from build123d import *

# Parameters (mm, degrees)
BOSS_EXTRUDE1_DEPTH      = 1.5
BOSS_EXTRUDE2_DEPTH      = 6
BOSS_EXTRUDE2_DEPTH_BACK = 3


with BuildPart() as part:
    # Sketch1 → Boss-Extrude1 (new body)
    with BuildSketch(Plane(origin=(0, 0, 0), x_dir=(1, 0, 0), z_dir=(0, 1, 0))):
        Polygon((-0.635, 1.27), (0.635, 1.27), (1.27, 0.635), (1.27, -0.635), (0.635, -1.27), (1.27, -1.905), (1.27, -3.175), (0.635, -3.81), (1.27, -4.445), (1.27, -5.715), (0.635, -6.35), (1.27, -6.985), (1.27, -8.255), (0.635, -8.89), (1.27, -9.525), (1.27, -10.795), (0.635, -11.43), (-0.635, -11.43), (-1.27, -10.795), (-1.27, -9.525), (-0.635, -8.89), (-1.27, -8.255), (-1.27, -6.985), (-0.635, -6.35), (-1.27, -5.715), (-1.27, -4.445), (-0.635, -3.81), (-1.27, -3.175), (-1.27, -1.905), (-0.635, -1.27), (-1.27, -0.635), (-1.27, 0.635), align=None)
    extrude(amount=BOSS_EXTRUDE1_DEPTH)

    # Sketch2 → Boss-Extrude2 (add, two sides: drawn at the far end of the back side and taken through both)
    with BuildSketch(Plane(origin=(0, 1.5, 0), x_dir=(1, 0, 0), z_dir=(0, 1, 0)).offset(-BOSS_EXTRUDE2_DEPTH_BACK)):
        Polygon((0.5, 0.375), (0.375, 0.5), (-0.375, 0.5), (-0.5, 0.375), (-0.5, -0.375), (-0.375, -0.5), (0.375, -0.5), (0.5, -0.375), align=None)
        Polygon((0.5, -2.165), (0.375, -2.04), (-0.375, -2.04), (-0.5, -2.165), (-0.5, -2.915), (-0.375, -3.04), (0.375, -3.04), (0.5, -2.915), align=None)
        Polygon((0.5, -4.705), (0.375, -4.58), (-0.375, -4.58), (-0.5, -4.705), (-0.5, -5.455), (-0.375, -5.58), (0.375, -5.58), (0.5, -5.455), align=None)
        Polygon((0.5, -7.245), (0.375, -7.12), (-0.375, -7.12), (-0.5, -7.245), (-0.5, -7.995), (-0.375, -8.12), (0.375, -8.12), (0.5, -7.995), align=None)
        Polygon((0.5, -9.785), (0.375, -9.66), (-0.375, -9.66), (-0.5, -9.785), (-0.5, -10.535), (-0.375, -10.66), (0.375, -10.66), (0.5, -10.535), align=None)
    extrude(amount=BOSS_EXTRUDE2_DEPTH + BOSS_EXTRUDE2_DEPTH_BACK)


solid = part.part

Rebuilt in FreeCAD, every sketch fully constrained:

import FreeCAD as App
import Part
import Sketcher

V = App.Vector
Q = App.Units.Quantity


def add_polygon(sketch, points):
    """Adds a closed chain of lines whose ends are joined by coincident constraints."""
    first, n = sketch.GeometryCount, len(points)
    for a, b in zip(points, points[1:] + points[:1]):
        sketch.addGeometry(Part.LineSegment(App.Vector(*a, 0), App.Vector(*b, 0)), False)
    for i in range(n):
        sketch.addConstraint(Sketcher.Constraint("Coincident", first + i, 2, first + (i + 1) % n, 1))

doc = App.newDocument("Part")
body = doc.addObject("PartDesign::Body", "Body")

sketch1 = doc.addObject("Sketcher::SketchObject", "Sketch")
body.addObject(sketch1)
sketch1.AttachmentSupport = (doc.XZ_Plane, [""])
sketch1.MapMode = "FlatFace"
add_polygon(sketch1, [(0.6, -1.3), (-0.6, -1.3), (-1.3, -0.6), (-1.3, 0.6), (-0.6, 1.3), (-1.3, 1.9), (-1.3, 3.2), (-0.6, 3.8), (-1.3, 4.4), (-1.3, 5.7), (-0.6, 6.3), (-1.3, 7), (-1.3, 8.3), (-0.6, 8.9), (-1.3, 9.5), (-1.3, 10.8), (-0.6, 11.4), (0.6, 11.4), (1.3, 10.8), (1.3, 9.5), (0.6, 8.9), (1.3, 8.3), (1.3, 7), (0.6, 6.3), (1.3, 5.7), (1.3, 4.4), (0.6, 3.8), (1.3, 3.2), (1.3, 1.9), (0.6, 1.3), (1.3, 0.6), (1.3, -0.6)])
sketch1.addConstraint([
    Sketcher.Constraint("Horizontal", 0),
    Sketcher.Constraint("Vertical", 2),
    Sketcher.Constraint("Vertical", 5),
    Sketcher.Constraint("Vertical", 8),
    Sketcher.Constraint("Vertical", 11),
    Sketcher.Constraint("Vertical", 14),
    Sketcher.Constraint("Horizontal", 16),
    Sketcher.Constraint("Vertical", 18),
    Sketcher.Constraint("Vertical", 21),
    Sketcher.Constraint("Vertical", 24),
    Sketcher.Constraint("Vertical", 27),
    Sketcher.Constraint("Vertical", 30),
    Sketcher.Constraint("Symmetric", 0, 2, 28, 2, -1, 1),
    Sketcher.Constraint("Symmetric", 1, 2, 29, 2, -1, 1),
    Sketcher.Constraint("Symmetric", 3, 2, 31, 2, -1, 1),
    Sketcher.Constraint("Symmetric", 14, 2, 17, 2, -2),
    Sketcher.Constraint("Symmetric", 12, 2, 19, 2, -2),
    Sketcher.Constraint("Symmetric", 11, 2, 20, 2, -2),
    Sketcher.Constraint("Symmetric", 9, 2, 22, 2, -2),
    Sketcher.Constraint("Symmetric", 8, 2, 23, 2, -2),
    Sketcher.Constraint("Symmetric", 6, 2, 25, 2, -2),
    Sketcher.Constraint("Symmetric", 5, 2, 26, 2, -2),
    Sketcher.Constraint("Perpendicular", 1, 3),
    Sketcher.Constraint("Perpendicular", 3, 4),
    Sketcher.Constraint("Perpendicular", 4, 6),
    Sketcher.Constraint("Perpendicular", 6, 7),
    Sketcher.Constraint("Perpendicular", 7, 9),
    Sketcher.Constraint("Perpendicular", 9, 10),
    Sketcher.Constraint("Perpendicular", 10, 12),
    Sketcher.Constraint("Perpendicular", 12, 13),
    Sketcher.Constraint("Perpendicular", 13, 15),
    Sketcher.Constraint("Perpendicular", 15, 17),
    Sketcher.Constraint("Perpendicular", 17, 19),
    Sketcher.Constraint("Perpendicular", 19, 20),
    Sketcher.Constraint("Perpendicular", 20, 22),
    Sketcher.Constraint("Perpendicular", 23, 25),
    Sketcher.Constraint("Perpendicular", 26, 28),
    Sketcher.Constraint("Perpendicular", 29, 31),
    Sketcher.Constraint("Horizontal", 4, 2, 27, 2),
    Sketcher.Constraint("Vertical", 2, 2, 4, 2),
    Sketcher.Constraint("Vertical", 3, 2, 6, 2),
    Sketcher.Constraint("Vertical", 5, 2, 7, 2),
    Sketcher.Constraint("Vertical", 6, 2, 9, 2),
    Sketcher.Constraint("Vertical", 8, 2, 10, 2),
    Sketcher.Constraint("Vertical", 9, 2, 12, 2),
    Sketcher.Constraint("Vertical", 11, 2, 13, 2),
    Sketcher.Constraint("Vertical", 12, 2, 15, 2),
    Sketcher.Constraint("Equal", 16, 2),
    Sketcher.Constraint("Equal", 2, 5),
    Sketcher.Constraint("Equal", 5, 8),
    Sketcher.Constraint("Equal", 8, 11),
    Sketcher.Constraint("Equal", 11, 14),
    Sketcher.Constraint("DistanceX", 0, 2, 0, 1, Q("1.27 mm")),
    Sketcher.Constraint("DistanceY", 0, 2, -1, 1, Q("1.27 mm")),
])
pad1 = doc.addObject("PartDesign::Pad", "Pad")
body.addObject(pad1)
pad1.Profile = sketch1
pad1.Length = 1.5
pad1.Reversed = True

sketch2 = doc.addObject("Sketcher::SketchObject", "Sketch001")
body.addObject(sketch2)
sketch2.AttachmentSupport = (doc.XZ_Plane, [""])
sketch2.MapMode = "FlatFace"
sketch2.AttachmentOffset = App.Placement(V(0, 0, -1.5), App.Rotation())
add_polygon(sketch2, [(0.5, -0.38), (0.38, -0.5), (-0.38, -0.5), (-0.5, -0.38), (-0.5, 0.38), (-0.38, 0.5), (0.38, 0.5), (0.5, 0.38)])
add_polygon(sketch2, [(0.5, 2.17), (0.38, 2.04), (-0.38, 2.04), (-0.5, 2.17), (-0.5, 2.92), (-0.38, 3.04), (0.38, 3.04), (0.5, 2.92)])
add_polygon(sketch2, [(0.5, 4.71), (0.38, 4.58), (-0.38, 4.58), (-0.5, 4.71), (-0.5, 5.46), (-0.38, 5.58), (0.38, 5.58), (0.5, 5.46)])
add_polygon(sketch2, [(0.5, 7.25), (0.38, 7.12), (-0.38, 7.12), (-0.5, 7.25), (-0.5, 8), (-0.38, 8.12), (0.38, 8.12), (0.5, 8)])
add_polygon(sketch2, [(0.5, 9.79), (0.38, 9.66), (-0.38, 9.66), (-0.5, 9.79), (-0.5, 10.54), (-0.38, 10.66), (0.38, 10.66), (0.5, 10.54)])
sketch2.addConstraint([
    Sketcher.Constraint("Horizontal", 1),
    Sketcher.Constraint("Vertical", 3),
    Sketcher.Constraint("Horizontal", 5),
    Sketcher.Constraint("Vertical", 7),
    Sketcher.Constraint("Horizontal", 9),
    Sketcher.Constraint("Vertical", 11),
    Sketcher.Constraint("Horizontal", 13),
    Sketcher.Constraint("Vertical", 15),
    Sketcher.Constraint("Horizontal", 17),
    Sketcher.Constraint("Vertical", 19),
    Sketcher.Constraint("Horizontal", 21),
    Sketcher.Constraint("Vertical", 23),
    Sketcher.Constraint("Horizontal", 25),
    Sketcher.Constraint("Vertical", 27),
    Sketcher.Constraint("Horizontal", 29),
    Sketcher.Constraint("Vertical", 31),
    Sketcher.Constraint("Horizontal", 33),
    Sketcher.Constraint("Vertical", 35),
    Sketcher.Constraint("Horizontal", 37),
    Sketcher.Constraint("Vertical", 39),
    Sketcher.Constraint("Symmetric", 0, 2, 4, 2, -1, 1),
    Sketcher.Constraint("Symmetric", 2, 2, 6, 2, -1, 1),
    Sketcher.Constraint("Symmetric", 11, 2, 14, 2, -2),
    Sketcher.Constraint("Symmetric", 19, 2, 22, 2, -2),
    Sketcher.Constraint("Symmetric", 27, 2, 30, 2, -2),
    Sketcher.Constraint("Symmetric", 35, 2, 38, 2, -2),
    Sketcher.Constraint("Perpendicular", 0, 2),
    Sketcher.Constraint("Perpendicular", 2, 4),
    Sketcher.Constraint("Perpendicular", 4, 6),
    Sketcher.Constraint("Perpendicular", 6, 8),
    Sketcher.Constraint("Perpendicular", 8, 10),
    Sketcher.Constraint("Perpendicular", 10, 12),
    Sketcher.Constraint("Perpendicular", 12, 14),
    Sketcher.Constraint("Perpendicular", 14, 16),
    Sketcher.Constraint("Perpendicular", 16, 18),
    Sketcher.Constraint("Perpendicular", 18, 20),
    Sketcher.Constraint("Perpendicular", 20, 22),
    Sketcher.Constraint("Perpendicular", 22, 24),
    Sketcher.Constraint("Perpendicular", 24, 26),
    Sketcher.Constraint("Perpendicular", 26, 28),
    Sketcher.Constraint("Perpendicular", 28, 30),
    Sketcher.Constraint("Perpendicular", 30, 32),
    Sketcher.Constraint("Perpendicular", 32, 34),
    Sketcher.Constraint("Perpendicular", 34, 36),
    Sketcher.Constraint("Perpendicular", 36, 38),
    Sketcher.Constraint("Horizontal", 3, 2, 6, 2),
    Sketcher.Constraint("Horizontal", 10, 2, 15, 2),
    Sketcher.Constraint("Horizontal", 18, 2, 23, 2),
    Sketcher.Constraint("Horizontal", 26, 2, 31, 2),
    Sketcher.Constraint("Horizontal", 34, 2, 39, 2),
    Sketcher.Constraint("Vertical", 1, 2, 4, 2),
    Sketcher.Constraint("Vertical", 5, 2, 8, 2),
    Sketcher.Constraint("Vertical", 3, 2, 10, 2),
    Sketcher.Constraint("Vertical", 9, 2, 12, 2),
    Sketcher.Constraint("Vertical", 13, 2, 16, 2),
    Sketcher.Constraint("Vertical", 11, 2, 18, 2),
    Sketcher.Constraint("Vertical", 17, 2, 20, 2),
    Sketcher.Constraint("Vertical", 21, 2, 24, 2),
    Sketcher.Constraint("Vertical", 19, 2, 26, 2),
    Sketcher.Constraint("Vertical", 25, 2, 28, 2),
    Sketcher.Constraint("Vertical", 29, 2, 32, 2),
    Sketcher.Constraint("Vertical", 27, 2, 34, 2),
    Sketcher.Constraint("Vertical", 33, 2, 36, 2),
    Sketcher.Constraint("Equal", 37, 3),
    Sketcher.Constraint("Equal", 7, 11),
    Sketcher.Constraint("Equal", 15, 19),
    Sketcher.Constraint("Equal", 23, 27),
    Sketcher.Constraint("Equal", 31, 35),
    Sketcher.Constraint("DistanceY", 1, 2, 4, 2, Q("1 mm")),
    Sketcher.Constraint("DistanceX", 1, 2, 1, 1, Q("0.75 mm")),
    Sketcher.Constraint("DistanceY", -1, 1, 8, 2, Q("2.04 mm")),
    Sketcher.Constraint("DistanceY", -1, 1, 16, 2, Q("4.58 mm")),
    Sketcher.Constraint("DistanceY", -1, 1, 24, 2, Q("7.12 mm")),
    Sketcher.Constraint("DistanceY", -1, 1, 32, 2, Q("9.66 mm")),
])
pad2 = doc.addObject("PartDesign::Pad", "Pad001")
body.addObject(pad2)
pad2.Profile = sketch2
pad2.Type = "TwoLengths"
pad2.Length = 6
pad2.Length2 = 3
pad2.Reversed = True

doc.recompute()
